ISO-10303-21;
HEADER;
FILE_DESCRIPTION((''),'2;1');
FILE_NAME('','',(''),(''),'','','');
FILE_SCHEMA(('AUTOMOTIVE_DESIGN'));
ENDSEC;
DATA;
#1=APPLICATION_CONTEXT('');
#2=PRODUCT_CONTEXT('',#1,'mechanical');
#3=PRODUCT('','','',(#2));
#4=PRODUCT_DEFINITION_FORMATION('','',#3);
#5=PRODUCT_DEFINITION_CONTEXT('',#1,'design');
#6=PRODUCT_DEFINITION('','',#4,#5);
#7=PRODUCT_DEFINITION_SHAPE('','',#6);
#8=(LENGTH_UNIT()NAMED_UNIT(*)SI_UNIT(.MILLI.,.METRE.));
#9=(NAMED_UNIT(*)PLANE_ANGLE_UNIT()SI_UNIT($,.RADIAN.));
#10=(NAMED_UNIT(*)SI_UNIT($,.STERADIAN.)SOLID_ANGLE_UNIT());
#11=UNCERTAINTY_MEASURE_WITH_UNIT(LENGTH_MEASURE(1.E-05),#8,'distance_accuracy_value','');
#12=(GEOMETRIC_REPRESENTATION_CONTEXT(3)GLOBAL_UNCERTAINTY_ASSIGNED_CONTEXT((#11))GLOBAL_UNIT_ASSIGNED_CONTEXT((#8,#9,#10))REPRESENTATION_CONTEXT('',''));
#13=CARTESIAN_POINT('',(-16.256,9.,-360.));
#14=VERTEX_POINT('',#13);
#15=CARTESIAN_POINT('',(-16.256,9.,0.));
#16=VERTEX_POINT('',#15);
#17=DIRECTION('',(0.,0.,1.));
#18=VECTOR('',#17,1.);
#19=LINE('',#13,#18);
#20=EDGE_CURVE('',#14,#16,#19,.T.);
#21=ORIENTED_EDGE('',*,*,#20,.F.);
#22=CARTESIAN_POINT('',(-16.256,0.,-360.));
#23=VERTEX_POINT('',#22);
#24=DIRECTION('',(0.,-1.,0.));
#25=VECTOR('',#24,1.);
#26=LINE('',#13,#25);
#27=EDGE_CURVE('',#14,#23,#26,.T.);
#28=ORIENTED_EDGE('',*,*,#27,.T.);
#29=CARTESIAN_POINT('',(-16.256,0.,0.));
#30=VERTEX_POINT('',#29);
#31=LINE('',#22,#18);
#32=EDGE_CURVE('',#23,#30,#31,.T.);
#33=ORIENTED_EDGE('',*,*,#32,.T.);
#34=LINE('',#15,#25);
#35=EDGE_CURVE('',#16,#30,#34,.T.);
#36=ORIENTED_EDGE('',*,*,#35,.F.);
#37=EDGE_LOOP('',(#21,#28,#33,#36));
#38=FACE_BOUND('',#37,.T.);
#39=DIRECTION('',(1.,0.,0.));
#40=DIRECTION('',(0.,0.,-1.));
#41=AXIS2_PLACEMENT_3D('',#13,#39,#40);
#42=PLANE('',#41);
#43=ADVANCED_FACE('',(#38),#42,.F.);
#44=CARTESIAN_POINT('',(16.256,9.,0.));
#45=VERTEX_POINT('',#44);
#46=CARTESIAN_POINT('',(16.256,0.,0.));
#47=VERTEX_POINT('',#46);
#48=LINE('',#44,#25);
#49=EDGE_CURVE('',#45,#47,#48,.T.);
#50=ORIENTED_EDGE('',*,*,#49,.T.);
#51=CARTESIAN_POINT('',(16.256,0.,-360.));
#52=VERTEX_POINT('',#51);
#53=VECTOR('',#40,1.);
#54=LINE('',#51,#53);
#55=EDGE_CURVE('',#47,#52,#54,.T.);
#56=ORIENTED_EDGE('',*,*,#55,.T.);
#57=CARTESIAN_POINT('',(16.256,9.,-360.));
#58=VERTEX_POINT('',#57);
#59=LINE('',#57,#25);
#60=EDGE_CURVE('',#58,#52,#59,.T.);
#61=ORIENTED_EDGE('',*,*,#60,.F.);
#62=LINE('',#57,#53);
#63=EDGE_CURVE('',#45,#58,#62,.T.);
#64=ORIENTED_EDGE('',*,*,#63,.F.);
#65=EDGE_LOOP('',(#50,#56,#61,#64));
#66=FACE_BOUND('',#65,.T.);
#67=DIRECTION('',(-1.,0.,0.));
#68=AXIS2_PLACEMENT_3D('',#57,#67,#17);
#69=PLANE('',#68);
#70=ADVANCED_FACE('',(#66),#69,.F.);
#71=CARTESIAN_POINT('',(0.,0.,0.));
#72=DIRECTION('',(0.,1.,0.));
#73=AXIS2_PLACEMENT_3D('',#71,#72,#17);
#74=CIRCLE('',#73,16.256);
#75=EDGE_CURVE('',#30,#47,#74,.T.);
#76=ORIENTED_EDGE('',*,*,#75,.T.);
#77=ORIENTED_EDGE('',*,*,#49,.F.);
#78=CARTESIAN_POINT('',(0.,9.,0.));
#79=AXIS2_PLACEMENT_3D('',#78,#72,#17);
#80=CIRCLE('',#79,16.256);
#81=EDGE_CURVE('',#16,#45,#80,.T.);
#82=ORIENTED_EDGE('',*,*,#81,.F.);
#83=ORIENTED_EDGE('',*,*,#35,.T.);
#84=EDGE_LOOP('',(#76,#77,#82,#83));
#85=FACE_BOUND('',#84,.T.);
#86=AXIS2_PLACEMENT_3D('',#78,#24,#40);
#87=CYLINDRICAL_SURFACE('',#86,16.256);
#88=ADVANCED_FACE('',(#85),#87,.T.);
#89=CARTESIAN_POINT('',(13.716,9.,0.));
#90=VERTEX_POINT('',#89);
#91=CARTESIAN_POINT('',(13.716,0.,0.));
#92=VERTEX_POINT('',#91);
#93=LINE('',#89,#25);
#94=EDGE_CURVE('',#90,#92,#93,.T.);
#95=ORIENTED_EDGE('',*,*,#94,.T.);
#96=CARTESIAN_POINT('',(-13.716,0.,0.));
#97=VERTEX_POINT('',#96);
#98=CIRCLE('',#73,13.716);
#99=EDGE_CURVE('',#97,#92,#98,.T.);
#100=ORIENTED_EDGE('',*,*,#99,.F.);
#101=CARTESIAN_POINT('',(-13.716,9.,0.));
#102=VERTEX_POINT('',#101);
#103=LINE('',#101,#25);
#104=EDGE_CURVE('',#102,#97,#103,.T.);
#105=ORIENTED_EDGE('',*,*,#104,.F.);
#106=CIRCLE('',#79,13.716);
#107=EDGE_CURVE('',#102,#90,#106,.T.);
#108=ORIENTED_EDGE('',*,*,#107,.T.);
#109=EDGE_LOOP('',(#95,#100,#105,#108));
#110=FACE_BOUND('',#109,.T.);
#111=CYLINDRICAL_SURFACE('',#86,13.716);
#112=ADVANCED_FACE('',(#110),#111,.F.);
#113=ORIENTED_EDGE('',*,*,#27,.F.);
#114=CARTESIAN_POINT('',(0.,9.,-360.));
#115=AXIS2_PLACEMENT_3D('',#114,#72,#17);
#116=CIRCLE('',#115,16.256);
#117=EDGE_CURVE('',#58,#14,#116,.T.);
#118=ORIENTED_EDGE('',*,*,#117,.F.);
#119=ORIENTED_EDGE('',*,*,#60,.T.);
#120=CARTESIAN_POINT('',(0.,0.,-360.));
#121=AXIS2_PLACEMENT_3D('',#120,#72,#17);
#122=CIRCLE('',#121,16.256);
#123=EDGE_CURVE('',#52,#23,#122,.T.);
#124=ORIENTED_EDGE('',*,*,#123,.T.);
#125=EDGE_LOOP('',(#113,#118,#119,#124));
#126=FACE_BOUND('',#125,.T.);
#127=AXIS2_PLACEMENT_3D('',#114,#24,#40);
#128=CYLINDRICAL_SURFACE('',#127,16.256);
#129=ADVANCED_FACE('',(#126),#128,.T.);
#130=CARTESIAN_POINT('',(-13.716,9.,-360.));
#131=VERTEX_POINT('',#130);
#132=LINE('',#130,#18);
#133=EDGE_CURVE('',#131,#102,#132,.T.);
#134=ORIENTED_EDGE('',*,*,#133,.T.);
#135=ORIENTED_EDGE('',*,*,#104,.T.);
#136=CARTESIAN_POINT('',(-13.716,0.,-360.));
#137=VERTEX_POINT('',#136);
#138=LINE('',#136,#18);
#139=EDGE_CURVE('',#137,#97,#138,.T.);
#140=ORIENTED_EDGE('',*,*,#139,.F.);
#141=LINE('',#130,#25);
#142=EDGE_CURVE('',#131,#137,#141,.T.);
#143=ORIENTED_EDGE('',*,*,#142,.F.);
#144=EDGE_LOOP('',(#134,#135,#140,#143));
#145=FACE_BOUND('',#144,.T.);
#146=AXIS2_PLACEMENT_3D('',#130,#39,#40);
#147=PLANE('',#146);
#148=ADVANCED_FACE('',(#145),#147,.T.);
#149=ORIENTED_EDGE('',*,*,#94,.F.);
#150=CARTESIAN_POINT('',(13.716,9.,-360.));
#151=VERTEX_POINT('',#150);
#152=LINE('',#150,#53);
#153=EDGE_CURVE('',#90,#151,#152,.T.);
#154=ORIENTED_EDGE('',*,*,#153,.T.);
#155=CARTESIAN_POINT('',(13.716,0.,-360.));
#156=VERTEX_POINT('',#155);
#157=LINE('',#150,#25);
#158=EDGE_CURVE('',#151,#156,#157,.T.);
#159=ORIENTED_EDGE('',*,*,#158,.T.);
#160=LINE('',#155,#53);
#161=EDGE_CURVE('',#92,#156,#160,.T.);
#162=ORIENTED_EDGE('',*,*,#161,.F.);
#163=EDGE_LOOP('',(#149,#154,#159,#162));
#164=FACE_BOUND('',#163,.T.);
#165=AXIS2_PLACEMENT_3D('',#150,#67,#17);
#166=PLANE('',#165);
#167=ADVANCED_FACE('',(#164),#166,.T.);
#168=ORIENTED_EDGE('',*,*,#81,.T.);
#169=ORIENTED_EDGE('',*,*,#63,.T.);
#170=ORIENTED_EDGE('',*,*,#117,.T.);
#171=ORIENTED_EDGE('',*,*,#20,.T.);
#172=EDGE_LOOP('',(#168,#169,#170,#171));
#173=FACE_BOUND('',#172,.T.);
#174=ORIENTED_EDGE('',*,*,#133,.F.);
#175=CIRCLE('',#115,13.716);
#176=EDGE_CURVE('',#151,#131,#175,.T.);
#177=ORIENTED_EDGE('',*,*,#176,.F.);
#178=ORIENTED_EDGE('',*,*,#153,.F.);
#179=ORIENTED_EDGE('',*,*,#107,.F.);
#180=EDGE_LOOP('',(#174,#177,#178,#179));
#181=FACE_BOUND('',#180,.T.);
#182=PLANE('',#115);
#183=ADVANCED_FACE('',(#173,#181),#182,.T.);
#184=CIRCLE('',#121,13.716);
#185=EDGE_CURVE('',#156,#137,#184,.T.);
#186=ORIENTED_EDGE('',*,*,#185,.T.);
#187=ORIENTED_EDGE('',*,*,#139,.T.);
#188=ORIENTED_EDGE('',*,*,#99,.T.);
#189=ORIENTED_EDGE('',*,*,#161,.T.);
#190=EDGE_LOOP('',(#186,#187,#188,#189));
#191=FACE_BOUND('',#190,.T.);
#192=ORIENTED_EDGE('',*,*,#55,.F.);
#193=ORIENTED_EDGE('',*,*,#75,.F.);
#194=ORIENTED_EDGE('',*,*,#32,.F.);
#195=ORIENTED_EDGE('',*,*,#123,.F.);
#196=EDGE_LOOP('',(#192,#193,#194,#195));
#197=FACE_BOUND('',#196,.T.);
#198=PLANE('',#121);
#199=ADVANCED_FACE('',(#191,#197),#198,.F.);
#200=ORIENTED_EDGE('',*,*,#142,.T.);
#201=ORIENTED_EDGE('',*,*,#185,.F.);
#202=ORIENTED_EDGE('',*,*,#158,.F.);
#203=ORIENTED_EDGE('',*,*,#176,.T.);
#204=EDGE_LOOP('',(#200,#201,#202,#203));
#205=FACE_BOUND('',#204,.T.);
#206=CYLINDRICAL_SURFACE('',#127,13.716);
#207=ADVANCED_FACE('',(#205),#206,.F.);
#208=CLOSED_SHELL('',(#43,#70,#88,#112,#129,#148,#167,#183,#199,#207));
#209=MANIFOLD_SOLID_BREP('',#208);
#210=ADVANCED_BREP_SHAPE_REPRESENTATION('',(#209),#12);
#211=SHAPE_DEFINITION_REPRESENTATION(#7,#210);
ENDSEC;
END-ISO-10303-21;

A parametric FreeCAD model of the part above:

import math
import FreeCAD as App
import Part
import Sketcher

V = App.Vector
Q = App.Units.Quantity

doc = App.newDocument("Part")
params = doc.addObject("Spreadsheet::Sheet", "Params")
for row, (alias, value) in enumerate([
    ("sketch1_height", "360 mm"),
    ("pad1_length", "9 mm"),
], start=1):
    params.set(f"A{row}", alias)
    params.set(f"B{row}", "=" + value)
    params.setAlias(f"B{row}", alias)

body = doc.addObject("PartDesign::Body", "Body")

sketch1 = doc.addObject("Sketcher::SketchObject", "Sketch")
body.addObject(sketch1)
sketch1.AttachmentSupport = (doc.XZ_Plane, [""])
sketch1.MapMode = "FlatFace"
sketch1.addGeometry(Part.LineSegment(V(-16, -360, 0), V(-16, 0, 0)), False)
sketch1.addGeometry(Part.ArcOfCircle(Part.Circle(V(0, 0, 0), V(0, 0, 1), 16), math.radians(0), math.radians(180)), False)
sketch1.addGeometry(Part.LineSegment(V(16, 0, 0), V(16, -360, 0)), False)
sketch1.addGeometry(Part.ArcOfCircle(Part.Circle(V(0, -360, 0), V(0, 0, 1), 16), math.radians(180), math.radians(360)), False)
sketch1.addGeometry(Part.LineSegment(V(-14, 0, 0), V(-14, -360, 0)), False)
sketch1.addGeometry(Part.ArcOfCircle(Part.Circle(V(0, -360, 0), V(0, 0, 1), 14), math.radians(180), math.radians(360)), False)
sketch1.addGeometry(Part.LineSegment(V(14, -360, 0), V(14, 0, 0)), False)
sketch1.addGeometry(Part.ArcOfCircle(Part.Circle(V(0, 0, 0), V(0, 0, 1), 14), math.radians(0), math.radians(180)), False)
sketch1.addConstraint(Sketcher.Constraint("Tangent", 0, 2, 1, 2))
sketch1.addConstraint(Sketcher.Constraint("Tangent", 1, 1, 2, 1))
sketch1.addConstraint(Sketcher.Constraint("Tangent", 2, 2, 3, 2))
sketch1.addConstraint(Sketcher.Constraint("Tangent", 3, 1, 0, 1))
sketch1.addConstraint(Sketcher.Constraint("Tangent", 4, 2, 5, 1))
sketch1.addConstraint(Sketcher.Constraint("Tangent", 5, 2, 6, 1))
sketch1.addConstraint(Sketcher.Constraint("Tangent", 6, 2, 7, 1))
sketch1.addConstraint(Sketcher.Constraint("Tangent", 7, 2, 4, 1))
sketch1.addConstraint(Sketcher.Constraint("Vertical", 0))
sketch1.addConstraint(Sketcher.Constraint("Vertical", 2))
sketch1.addConstraint(Sketcher.Constraint("Vertical", 4))
sketch1.addConstraint(Sketcher.Constraint("Vertical", 6))
sketch1.addConstraint(Sketcher.Constraint("Coincident", 1, 3, -1, 1))
sketch1.addConstraint(Sketcher.Constraint("Coincident", 7, 3, -1, 1))
sketch1.addConstraint(Sketcher.Constraint("Horizontal", 5, 3, 2, 2))
sketch1.addConstraint(Sketcher.Constraint("DistanceY", 0, 1, 0, 2, Q("360 mm")))
sketch1.addConstraint(Sketcher.Constraint("Radius", 1, Q("16.256 mm")))
sketch1.addConstraint(Sketcher.Constraint("Radius", 5, Q("13.716 mm")))
sketch1.setExpression("Constraints[15]", "Params.sketch1_height")
pad1 = doc.addObject("PartDesign::Pad", "Pad")
body.addObject(pad1)
pad1.Profile = sketch1
pad1.setExpression("Length", "Params.pad1_length")
pad1.Reversed = True

doc.recompute()
